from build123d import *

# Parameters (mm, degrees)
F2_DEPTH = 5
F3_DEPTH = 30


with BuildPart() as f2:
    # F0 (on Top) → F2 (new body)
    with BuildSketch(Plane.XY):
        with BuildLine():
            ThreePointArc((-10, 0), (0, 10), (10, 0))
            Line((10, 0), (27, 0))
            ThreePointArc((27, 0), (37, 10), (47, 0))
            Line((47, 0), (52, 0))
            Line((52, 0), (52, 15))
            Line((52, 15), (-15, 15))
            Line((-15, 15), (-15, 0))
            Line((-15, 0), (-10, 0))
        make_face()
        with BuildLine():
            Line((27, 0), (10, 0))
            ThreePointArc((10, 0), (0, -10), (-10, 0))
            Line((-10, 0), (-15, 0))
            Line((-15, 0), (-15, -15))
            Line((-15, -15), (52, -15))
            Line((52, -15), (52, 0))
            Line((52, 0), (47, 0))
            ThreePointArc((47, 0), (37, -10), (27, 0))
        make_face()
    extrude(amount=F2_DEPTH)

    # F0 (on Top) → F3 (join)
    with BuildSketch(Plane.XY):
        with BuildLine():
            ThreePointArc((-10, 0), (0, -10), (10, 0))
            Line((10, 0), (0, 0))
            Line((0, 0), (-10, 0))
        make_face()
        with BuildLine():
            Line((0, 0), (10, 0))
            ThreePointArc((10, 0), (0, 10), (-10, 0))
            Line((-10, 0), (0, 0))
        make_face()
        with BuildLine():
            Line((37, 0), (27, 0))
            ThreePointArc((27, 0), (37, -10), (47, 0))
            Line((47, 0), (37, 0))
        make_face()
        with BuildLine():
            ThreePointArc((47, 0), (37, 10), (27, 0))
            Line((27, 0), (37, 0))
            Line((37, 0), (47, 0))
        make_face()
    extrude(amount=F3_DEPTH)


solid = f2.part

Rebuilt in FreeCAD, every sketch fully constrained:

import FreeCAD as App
import Part
import Sketcher
from FreeCAD import Vector

doc = App.newDocument("Part")
body = doc.addObject("PartDesign::Body", "Body")

# Sketch on XY plane
sketch1 = body.newObject("Sketcher::SketchObject", "Sketch")
sketch1.AttachmentSupport = (doc.getObject("XY_Plane"), [""])
sketch1.MapMode = "FlatFace"
sketch1.addGeometry([
    Part.LineSegment(Vector(52, 15, 0), Vector(-15, 15, 0)),  # 0
    Part.LineSegment(Vector(-15, 15, 0), Vector(-15, -15, 0)),  # 1
    Part.LineSegment(Vector(-15, -15, 0), Vector(52, -15, 0)),  # 2
    Part.LineSegment(Vector(52, -15, 0), Vector(52, 15, 0)),  # 3
    Part.Circle(Vector(0, 0, 0), Vector(0, 0, 1), 10),  # 4
    Part.Circle(Vector(37, 0, 0), Vector(0, 0, 1), 10),  # 5
], False)
sketch1.addConstraint([
    Sketcher.Constraint("Coincident", 0, 2, 1, 1),
    Sketcher.Constraint("Coincident", 1, 2, 2, 1),
    Sketcher.Constraint("Coincident", 2, 2, 3, 1),
    Sketcher.Constraint("Coincident", 3, 2, 0, 1),
    Sketcher.Constraint("Horizontal", 0),
    Sketcher.Constraint("Vertical", 1),
    Sketcher.Constraint("Horizontal", 2),
    Sketcher.Constraint("Vertical", 3),
    Sketcher.Constraint("Coincident", 4, 3, -1, 1),
    Sketcher.Constraint("Equal", 4, 5),
    Sketcher.Constraint("PointOnObject", 5, 3, -1),
    Sketcher.Constraint("Diameter", 4, 20.0),
    Sketcher.Constraint("DistanceX", 0, 2, 0, 1, 67.0),
    Sketcher.Constraint("DistanceY", 1, 2, 1, 1, 30.0),
    Sketcher.Constraint("DistanceX", -1, 1, 5, 3, 37.0),
    Sketcher.Constraint("DistanceX", 0, 2, -1, 1, 15.0),
    Sketcher.Constraint("DistanceY", -1, 1, 0, 2, 15.0),
])
pad1 = body.newObject("PartDesign::Pad", "Pad")
pad1.Profile = sketch1
pad1.Length = 5

# Sketch on XY plane
sketch2 = body.newObject("Sketcher::SketchObject", "Sketch001")
sketch2.AttachmentSupport = (doc.getObject("XY_Plane"), [""])
sketch2.MapMode = "FlatFace"
sketch2.addGeometry([
    Part.Circle(Vector(0, 0, 0), Vector(0, 0, 1), 10),
    Part.Circle(Vector(37, 0, 0), Vector(0, 0, 1), 10),
], False)
sketch2.addConstraint([
    Sketcher.Constraint("Coincident", 0, 3, -1, 1),
    Sketcher.Constraint("Equal", 0, 1),
    Sketcher.Constraint("PointOnObject", 1, 3, -1),
    Sketcher.Constraint("Diameter", 0, 20.0),
    Sketcher.Constraint("DistanceX", -1, 1, 1, 3, 37.0),
])
pad2 = body.newObject("PartDesign::Pad", "Pad001")
pad2.Profile = sketch2
pad2.Length = 30

doc.recompute()
